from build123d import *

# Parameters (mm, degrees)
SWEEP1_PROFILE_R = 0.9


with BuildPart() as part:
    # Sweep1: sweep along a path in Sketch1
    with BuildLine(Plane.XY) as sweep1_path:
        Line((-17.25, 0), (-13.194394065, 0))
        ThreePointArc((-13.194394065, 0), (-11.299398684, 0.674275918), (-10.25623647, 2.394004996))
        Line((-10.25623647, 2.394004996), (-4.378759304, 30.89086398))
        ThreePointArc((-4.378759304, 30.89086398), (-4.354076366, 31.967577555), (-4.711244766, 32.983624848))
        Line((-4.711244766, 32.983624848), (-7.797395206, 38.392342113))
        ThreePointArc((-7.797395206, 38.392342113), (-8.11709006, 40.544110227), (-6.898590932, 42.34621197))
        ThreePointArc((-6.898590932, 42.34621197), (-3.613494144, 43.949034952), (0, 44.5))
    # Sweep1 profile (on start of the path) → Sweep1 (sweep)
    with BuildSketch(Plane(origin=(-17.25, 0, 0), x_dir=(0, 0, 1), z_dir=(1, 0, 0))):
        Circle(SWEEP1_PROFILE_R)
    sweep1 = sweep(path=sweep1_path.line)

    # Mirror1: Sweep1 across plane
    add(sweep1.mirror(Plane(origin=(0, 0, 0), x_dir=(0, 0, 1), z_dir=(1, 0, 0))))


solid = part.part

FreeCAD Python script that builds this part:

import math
import FreeCAD as App
import Part
import Sketcher

V = App.Vector

doc = App.newDocument("Part")
body = doc.addObject("PartDesign::Body", "Body")

# Sketch on YZ plane
sketch1 = doc.addObject("Sketcher::SketchObject", "Sketch")
body.addObject(sketch1)
sketch1.AttachmentSupport = (doc.YZ_Plane, [""])
sketch1.MapMode = "FlatFace"
sketch1.AttachmentOffset = App.Placement(V(0, 0, -17.25), App.Rotation())
sketch1.addGeometry(Part.Circle(V(0, 0, 0), V(0, 0, 1), 0.9), False)
sketch1.addConstraint([
    Sketcher.Constraint("Coincident", 0, 3, -1, 1),
    Sketcher.Constraint("Diameter", 0, 1.8),
])

# Sketch on XY plane
sketch2 = doc.addObject("Sketcher::SketchObject", "Sketch001")
body.addObject(sketch2)
sketch2.AttachmentSupport = (doc.XY_Plane, [""])
sketch2.MapMode = "FlatFace"
sketch2.addGeometry([
    Part.LineSegment(V(-17.2, 0, 0), V(-13.2, 0, 0)),  # 0
    Part.ArcOfCircle(Part.Circle(V(-13.2, 3, 0), V(0, 0, 1), 3), math.radians(-90), math.radians(-12)),  # 1
    Part.LineSegment(V(-10.3, 2.4, 0), V(-4.4, 30.9, 0)),  # 2
    Part.ArcOfCircle(Part.Circle(V(-7.3, 31.5, 0), V(0, 0, 1), 3), math.radians(-12), math.radians(30)),  # 3
    Part.LineSegment(V(-4.7, 33, 0), V(-7.8, 38.4, 0)),  # 4
    Part.ArcOfCircle(Part.Circle(V(-5.2, 39.9, 0), V(0, 0, 1), 3), math.radians(125), math.radians(210)),  # 5
    Part.ArcOfCircle(Part.Circle(V(0, 32.4, 0), V(0, 0, 1), 12.1), math.radians(90), math.radians(125)),  # 6
], False)
sketch2.addConstraint([
    Sketcher.Constraint("Tangent", 0, 2, 1, 1),
    Sketcher.Constraint("Tangent", 1, 2, 2, 1),
    Sketcher.Constraint("Tangent", 2, 2, 3, 1),
    Sketcher.Constraint("Tangent", 3, 2, 4, 1),
    Sketcher.Constraint("Tangent", 4, 2, 5, 2),
    Sketcher.Constraint("Tangent", 5, 1, 6, 2),
    Sketcher.Constraint("Horizontal", 0),
    Sketcher.Constraint("Equal", 1, 3),
    Sketcher.Constraint("Equal", 3, 5),
    Sketcher.Constraint("PointOnObject", 6, 3, -2),
    Sketcher.Constraint("PointOnObject", 0, 1, -1),
    Sketcher.Constraint("PointOnObject", 6, 1, -2),
    Sketcher.Constraint("Radius", 1, 3.0),
    Sketcher.Constraint("Radius", 6, 12.125),
    Sketcher.Constraint("DistanceY", -1, 1, 6, 1, 44.5),
    Sketcher.Constraint("DistanceX", 0, 1, -1, 1, 17.25),
    Sketcher.Constraint("Distance", 2, 29.096661),
    Sketcher.Constraint("DistanceX", 0, 1, 0, 2, 4.055606),
    Sketcher.Constraint("DistanceY", -1, 1, 3, 3, 31.496859),
    Sketcher.Constraint("DistanceX", 5, 1, -1, 1, 6.898591),
])
doc.recompute()

additivepipe = doc.addObject("PartDesign::AdditivePipe", "AdditivePipe")
body.addObject(additivepipe)
additivepipe.Profile = sketch1
additivepipe.Spine = (sketch2, ["Edge1", "Edge2", "Edge3", "Edge4", "Edge5", "Edge6", "Edge7"])
doc.recompute()

mirrored = doc.addObject("PartDesign::Mirrored", "Mirrored")
body.addObject(mirrored)
mirrored.Originals = [additivepipe]
mirrored.MirrorPlane = (doc.YZ_Plane, [""])
body.Tip = mirrored

doc.recompute()
